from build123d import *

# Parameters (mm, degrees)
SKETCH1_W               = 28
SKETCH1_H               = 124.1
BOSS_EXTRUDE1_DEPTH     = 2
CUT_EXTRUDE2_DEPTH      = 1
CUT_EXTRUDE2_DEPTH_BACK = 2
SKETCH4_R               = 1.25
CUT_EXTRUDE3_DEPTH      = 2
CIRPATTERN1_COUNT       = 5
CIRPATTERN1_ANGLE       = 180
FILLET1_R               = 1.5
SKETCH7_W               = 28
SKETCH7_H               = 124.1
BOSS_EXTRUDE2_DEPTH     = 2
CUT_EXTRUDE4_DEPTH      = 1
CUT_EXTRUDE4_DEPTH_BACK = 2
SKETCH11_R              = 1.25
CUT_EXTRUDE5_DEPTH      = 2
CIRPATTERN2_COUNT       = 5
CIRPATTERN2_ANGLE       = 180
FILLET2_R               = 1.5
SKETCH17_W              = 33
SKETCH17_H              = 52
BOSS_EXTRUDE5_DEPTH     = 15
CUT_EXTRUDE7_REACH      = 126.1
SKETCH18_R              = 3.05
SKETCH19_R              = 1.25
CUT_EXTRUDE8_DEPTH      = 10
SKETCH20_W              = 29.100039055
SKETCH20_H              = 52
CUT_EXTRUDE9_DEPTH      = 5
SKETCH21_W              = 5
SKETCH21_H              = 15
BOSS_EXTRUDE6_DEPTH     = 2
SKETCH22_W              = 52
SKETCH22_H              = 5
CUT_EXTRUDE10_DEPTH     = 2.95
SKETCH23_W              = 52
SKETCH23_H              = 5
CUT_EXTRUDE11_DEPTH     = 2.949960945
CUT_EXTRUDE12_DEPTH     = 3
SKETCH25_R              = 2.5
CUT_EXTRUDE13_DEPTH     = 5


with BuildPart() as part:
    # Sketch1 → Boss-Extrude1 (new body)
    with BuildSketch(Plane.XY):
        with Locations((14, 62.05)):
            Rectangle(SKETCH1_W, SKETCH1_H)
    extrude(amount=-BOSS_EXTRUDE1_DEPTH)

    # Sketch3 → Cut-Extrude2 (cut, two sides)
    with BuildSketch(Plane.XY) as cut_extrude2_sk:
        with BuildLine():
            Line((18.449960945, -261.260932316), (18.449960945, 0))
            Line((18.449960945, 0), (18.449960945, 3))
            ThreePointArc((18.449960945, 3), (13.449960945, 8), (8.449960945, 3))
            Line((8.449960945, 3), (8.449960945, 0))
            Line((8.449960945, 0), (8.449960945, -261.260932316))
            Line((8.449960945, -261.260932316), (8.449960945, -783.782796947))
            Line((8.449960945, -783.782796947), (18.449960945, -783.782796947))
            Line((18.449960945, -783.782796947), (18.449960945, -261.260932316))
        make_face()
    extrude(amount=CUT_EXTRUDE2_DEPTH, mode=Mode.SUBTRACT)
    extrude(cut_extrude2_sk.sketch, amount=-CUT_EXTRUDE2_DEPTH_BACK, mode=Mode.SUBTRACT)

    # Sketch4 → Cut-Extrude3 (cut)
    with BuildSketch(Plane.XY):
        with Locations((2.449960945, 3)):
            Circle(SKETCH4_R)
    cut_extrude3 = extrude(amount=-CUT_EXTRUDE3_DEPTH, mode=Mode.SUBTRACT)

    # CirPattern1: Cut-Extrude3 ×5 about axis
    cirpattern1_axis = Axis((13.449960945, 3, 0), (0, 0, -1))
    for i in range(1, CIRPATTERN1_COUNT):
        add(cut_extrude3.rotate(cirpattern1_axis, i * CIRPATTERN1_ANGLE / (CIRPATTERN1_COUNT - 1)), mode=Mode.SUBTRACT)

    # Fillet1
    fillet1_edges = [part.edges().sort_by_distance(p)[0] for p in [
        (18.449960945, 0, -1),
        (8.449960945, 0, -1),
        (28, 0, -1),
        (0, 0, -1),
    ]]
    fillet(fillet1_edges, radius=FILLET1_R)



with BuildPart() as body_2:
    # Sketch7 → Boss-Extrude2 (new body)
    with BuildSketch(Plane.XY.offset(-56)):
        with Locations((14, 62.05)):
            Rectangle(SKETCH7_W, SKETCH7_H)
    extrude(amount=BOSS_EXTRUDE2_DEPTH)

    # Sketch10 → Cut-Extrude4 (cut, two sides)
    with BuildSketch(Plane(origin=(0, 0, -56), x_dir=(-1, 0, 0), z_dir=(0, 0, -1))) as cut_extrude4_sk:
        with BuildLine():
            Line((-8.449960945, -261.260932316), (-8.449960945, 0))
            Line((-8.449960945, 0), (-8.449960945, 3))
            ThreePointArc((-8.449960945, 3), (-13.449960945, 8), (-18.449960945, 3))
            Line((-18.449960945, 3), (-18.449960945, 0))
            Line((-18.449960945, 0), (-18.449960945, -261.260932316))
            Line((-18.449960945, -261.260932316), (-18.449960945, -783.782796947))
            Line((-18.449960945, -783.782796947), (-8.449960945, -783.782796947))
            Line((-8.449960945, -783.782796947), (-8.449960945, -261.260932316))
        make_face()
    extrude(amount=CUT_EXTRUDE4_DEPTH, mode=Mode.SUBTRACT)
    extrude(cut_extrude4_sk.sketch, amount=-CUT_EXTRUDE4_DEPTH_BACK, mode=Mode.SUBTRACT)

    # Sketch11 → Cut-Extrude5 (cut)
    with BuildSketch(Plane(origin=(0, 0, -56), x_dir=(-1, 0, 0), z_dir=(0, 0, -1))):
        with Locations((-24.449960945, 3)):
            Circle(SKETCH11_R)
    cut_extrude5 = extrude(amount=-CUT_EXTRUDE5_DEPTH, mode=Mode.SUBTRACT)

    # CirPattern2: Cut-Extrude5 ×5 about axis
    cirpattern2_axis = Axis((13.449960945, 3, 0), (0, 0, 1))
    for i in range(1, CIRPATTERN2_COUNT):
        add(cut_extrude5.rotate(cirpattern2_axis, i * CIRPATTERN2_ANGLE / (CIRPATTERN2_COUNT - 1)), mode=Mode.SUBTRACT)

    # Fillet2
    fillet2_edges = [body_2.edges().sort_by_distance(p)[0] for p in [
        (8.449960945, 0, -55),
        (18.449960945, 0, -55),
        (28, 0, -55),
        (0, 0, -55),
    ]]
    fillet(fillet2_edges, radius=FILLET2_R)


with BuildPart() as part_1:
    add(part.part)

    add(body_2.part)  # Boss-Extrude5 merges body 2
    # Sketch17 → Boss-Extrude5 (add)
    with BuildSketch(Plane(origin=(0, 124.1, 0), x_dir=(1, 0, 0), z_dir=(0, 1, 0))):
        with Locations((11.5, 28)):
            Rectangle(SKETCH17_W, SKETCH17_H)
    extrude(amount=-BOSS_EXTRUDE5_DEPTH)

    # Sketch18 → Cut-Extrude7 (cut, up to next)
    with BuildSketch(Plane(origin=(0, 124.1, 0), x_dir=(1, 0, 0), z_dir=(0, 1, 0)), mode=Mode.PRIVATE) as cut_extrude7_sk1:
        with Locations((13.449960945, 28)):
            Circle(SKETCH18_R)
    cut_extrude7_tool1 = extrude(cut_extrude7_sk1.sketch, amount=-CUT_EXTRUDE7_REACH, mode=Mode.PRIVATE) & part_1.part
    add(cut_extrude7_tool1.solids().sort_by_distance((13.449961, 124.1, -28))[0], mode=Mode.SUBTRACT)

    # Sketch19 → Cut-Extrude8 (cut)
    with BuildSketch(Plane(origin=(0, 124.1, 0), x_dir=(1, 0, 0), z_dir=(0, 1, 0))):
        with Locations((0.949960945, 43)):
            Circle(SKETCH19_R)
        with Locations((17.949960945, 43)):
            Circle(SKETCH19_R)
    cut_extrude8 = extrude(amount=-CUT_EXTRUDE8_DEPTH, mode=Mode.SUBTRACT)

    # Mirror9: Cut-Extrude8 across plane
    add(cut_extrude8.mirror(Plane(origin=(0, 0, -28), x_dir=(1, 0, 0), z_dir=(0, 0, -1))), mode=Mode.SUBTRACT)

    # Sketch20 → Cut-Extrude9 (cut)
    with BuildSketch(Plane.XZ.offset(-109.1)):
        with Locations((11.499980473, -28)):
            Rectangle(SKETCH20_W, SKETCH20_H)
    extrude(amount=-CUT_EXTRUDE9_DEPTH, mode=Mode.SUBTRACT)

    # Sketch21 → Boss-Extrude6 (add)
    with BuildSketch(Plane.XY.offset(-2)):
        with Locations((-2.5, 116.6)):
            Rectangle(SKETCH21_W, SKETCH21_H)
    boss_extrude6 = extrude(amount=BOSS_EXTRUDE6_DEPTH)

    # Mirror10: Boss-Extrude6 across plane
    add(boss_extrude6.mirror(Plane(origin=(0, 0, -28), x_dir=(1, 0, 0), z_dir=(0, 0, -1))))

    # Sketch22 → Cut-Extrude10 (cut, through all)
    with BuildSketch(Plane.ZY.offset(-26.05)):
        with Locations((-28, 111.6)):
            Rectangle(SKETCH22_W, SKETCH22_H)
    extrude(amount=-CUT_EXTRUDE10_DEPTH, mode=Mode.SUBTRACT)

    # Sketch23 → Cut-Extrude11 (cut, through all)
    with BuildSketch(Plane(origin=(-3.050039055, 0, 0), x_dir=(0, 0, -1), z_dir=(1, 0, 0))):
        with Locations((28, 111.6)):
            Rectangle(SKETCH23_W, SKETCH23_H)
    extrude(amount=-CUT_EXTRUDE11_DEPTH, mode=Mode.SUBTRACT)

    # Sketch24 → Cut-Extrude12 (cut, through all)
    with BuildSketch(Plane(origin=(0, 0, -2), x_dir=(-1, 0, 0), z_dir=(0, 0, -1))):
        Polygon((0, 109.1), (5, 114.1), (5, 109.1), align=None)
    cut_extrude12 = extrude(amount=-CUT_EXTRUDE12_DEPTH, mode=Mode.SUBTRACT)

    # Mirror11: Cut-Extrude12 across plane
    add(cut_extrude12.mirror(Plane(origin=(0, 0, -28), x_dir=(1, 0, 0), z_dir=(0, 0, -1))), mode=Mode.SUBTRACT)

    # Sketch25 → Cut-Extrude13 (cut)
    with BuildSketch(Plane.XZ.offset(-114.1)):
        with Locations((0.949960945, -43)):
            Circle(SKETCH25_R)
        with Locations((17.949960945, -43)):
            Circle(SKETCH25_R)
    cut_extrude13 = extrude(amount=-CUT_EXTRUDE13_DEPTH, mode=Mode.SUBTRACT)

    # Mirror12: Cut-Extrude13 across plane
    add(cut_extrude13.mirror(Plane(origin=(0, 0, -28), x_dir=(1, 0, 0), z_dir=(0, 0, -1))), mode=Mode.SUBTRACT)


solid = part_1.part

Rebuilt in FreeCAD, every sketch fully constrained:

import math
import FreeCAD as App
import Part
import Sketcher

V = App.Vector


def edges_at(feature, points):
    """Names of the edges that pass closest to the given points."""
    edges = feature.Shape.Edges
    near = lambda p: min(range(len(edges)), key=lambda i: edges[i].distToShape(Part.Vertex(*p))[0])
    return sorted({f"Edge{near(p) + 1}" for p in points})


def add_polygon(sketch, points):
    """Adds a closed chain of lines whose ends are joined by coincident constraints."""
    first, n = sketch.GeometryCount, len(points)
    for a, b in zip(points, points[1:] + points[:1]):
        sketch.addGeometry(Part.LineSegment(App.Vector(*a, 0), App.Vector(*b, 0)), False)
    for i in range(n):
        sketch.addConstraint(Sketcher.Constraint("Coincident", first + i, 2, first + (i + 1) % n, 1))

doc = App.newDocument("Part")
params = doc.addObject("Spreadsheet::Sheet", "Params")
for row, (alias, value) in enumerate([
    ("sketch1_width", "28 mm"),
    ("sketch1_height", "124.1 mm"),
    ("pad1_length", "2 mm"),
    ("sketch2_radius", "5 mm"),
    ("sketch3_diameter", "2.5 mm"),
    ("pocket2_length", "2 mm"),
    ("fillet_radius", "1.5 mm"),
    ("sketch4_width", "28 mm"),
    ("sketch4_height", "124.1 mm"),
    ("pad2_length", "2 mm"),
    ("sketch5_radius", "5 mm"),
    ("sketch6_diameter", "2.5 mm"),
    ("pocket4_length", "2 mm"),
    ("fillet2_radius", "1.5 mm"),
    ("sketch7_width", "33 mm"),
    ("sketch7_height", "52 mm"),
    ("pad3_length", "15 mm"),
    ("sketch8_diameter", "6.1 mm"),
    ("sketch9_diameter", "2.5 mm"),
    ("pocket6_length", "10 mm"),
    ("sketch10_height", "52 mm"),
    ("pocket7_length", "5 mm"),
    ("sketch11_width", "5 mm"),
    ("sketch11_height", "15 mm"),
    ("pad4_length", "2 mm"),
    ("sketch12_width", "5 mm"),
    ("sketch12_height", "52 mm"),
    ("sketch13_width", "5 mm"),
    ("sketch13_height", "52 mm"),
    ("sketch14_width", "5 mm"),
    ("sketch15_diameter", "5 mm"),
    ("pocket11_length", "5 mm"),
], start=1):
    params.set(f"A{row}", alias)
    params.set(f"B{row}", "=" + value)
    params.setAlias(f"B{row}", alias)

body = doc.addObject("PartDesign::Body", "Body")

sketch1 = doc.addObject("Sketcher::SketchObject", "Sketch")
body.addObject(sketch1)
sketch1.AttachmentSupport = (doc.XY_Plane, [""])
sketch1.MapMode = "FlatFace"
add_polygon(sketch1, [(0, 124.1), (0, 0), (28, 0), (28, 124.1)])
sketch1.addConstraint([
    Sketcher.Constraint("Vertical", 0),
    Sketcher.Constraint("Horizontal", 1),
    Sketcher.Constraint("Vertical", 2),
    Sketcher.Constraint("Horizontal", 3),
    Sketcher.Constraint("Coincident", 0, 2, -1, 1),
    Sketcher.Constraint("DistanceX", 1, 1, 1, 2, 28.0),
    Sketcher.Constraint("DistanceY", 0, 2, 0, 1, 124.1),
])
sketch1.setExpression("Constraints[9]", "Params.sketch1_width")
sketch1.setExpression("Constraints[10]", "Params.sketch1_height")
pad1 = doc.addObject("PartDesign::Pad", "Pad")
body.addObject(pad1)
pad1.Profile = sketch1
pad1.setExpression("Length", "Params.pad1_length")
pad1.Reversed = True

sketch2 = doc.addObject("Sketcher::SketchObject", "Sketch001")
body.addObject(sketch2)
sketch2.AttachmentSupport = (doc.XY_Plane, [""])
sketch2.MapMode = "FlatFace"
sketch2.addGeometry([
    Part.ArcOfCircle(Part.Circle(V(13.449961, 3, 0), V(0, 0, 1), 5), math.radians(0), math.radians(180)),
    Part.LineSegment(V(8.449961, 3, 0), V(8.449961, -783.782797, 0)),
    Part.LineSegment(V(8.449961, -783.782797, 0), V(18.449961, -783.782797, 0)),
    Part.LineSegment(V(18.449961, -783.782797, 0), V(18.449961, 3, 0)),
], False)
sketch2.addConstraint([
    Sketcher.Constraint("Tangent", 0, 2, 1, 1),
    Sketcher.Constraint("Coincident", 1, 2, 2, 1),
    Sketcher.Constraint("Coincident", 2, 2, 3, 1),
    Sketcher.Constraint("Tangent", 3, 2, 0, 1),
    Sketcher.Constraint("Vertical", 1),
    Sketcher.Constraint("Horizontal", 2),
    Sketcher.Constraint("Vertical", 3),
    Sketcher.Constraint("Radius", 0, 5.0),
    Sketcher.Constraint("DistanceY", -1, 1, 0, 3, 3.0),
    Sketcher.Constraint("DistanceY", 1, 2, 1, 1, 786.782797),
    Sketcher.Constraint("DistanceX", -1, 1, 0, 3, 13.449961),
])
sketch2.setExpression("Constraints[7]", "Params.sketch2_radius")
pocket1 = doc.addObject("PartDesign::Pocket", "Pocket")
body.addObject(pocket1)
pocket1.Profile = sketch2
pocket1.Type = "ThroughAll"
pocket1.Midplane = True

sketch3 = doc.addObject("Sketcher::SketchObject", "Sketch002")
body.addObject(sketch3)
sketch3.AttachmentSupport = (doc.XY_Plane, [""])
sketch3.MapMode = "FlatFace"
sketch3.addGeometry(Part.Circle(V(2.449961, 3, 0), V(0, 0, 1), 1.25), False)
sketch3.addConstraint([
    Sketcher.Constraint("Diameter", 0, 2.5),
    Sketcher.Constraint("DistanceY", -1, 1, 0, 3, 3.0),
    Sketcher.Constraint("DistanceX", -1, 1, 0, 3, 2.449961),
])
sketch3.setExpression("Constraints[0]", "Params.sketch3_diameter")
pocket2 = doc.addObject("PartDesign::Pocket", "Pocket001")
body.addObject(pocket2)
pocket2.Profile = sketch3
pocket2.setExpression("Length", "Params.pocket2_length")
doc.recompute()

datumline = doc.addObject("PartDesign::Line", "DatumLine")
body.addObject(datumline)
datumline.Placement = App.Placement(V(13.449961, 3, 0), App.Rotation(V(0, 0, 1), V(0, 0, -1)))
polarpattern = doc.addObject("PartDesign::PolarPattern", "PolarPattern")
body.addObject(polarpattern)
polarpattern.Originals = [pocket2]
polarpattern.Axis = (datumline, [""])
polarpattern.Angle = 180
polarpattern.Occurrences = 5
body.Tip = polarpattern
doc.recompute()

fillet = doc.addObject("PartDesign::Fillet", "Fillet")
body.addObject(fillet)
fillet.Base = (polarpattern, edges_at(polarpattern, [
    (18.45, 0, -1),
    (8.45, 0, -1),
    (28, 0, -1),
    (0, 0, -1),
]))
fillet.setExpression("Radius", "Params.fillet_radius")
body2 = doc.addObject("PartDesign::Body", "Body001")

sketch4 = doc.addObject("Sketcher::SketchObject", "Sketch003")
body2.addObject(sketch4)
sketch4.AttachmentSupport = (doc.getObject("XY_Plane001"), [""])
sketch4.MapMode = "FlatFace"
sketch4.AttachmentOffset = App.Placement(V(0, 0, -56), App.Rotation())
add_polygon(sketch4, [(0, 124.1), (0, 0), (28, 0), (28, 124.1)])
sketch4.addConstraint([
    Sketcher.Constraint("Vertical", 0),
    Sketcher.Constraint("Horizontal", 1),
    Sketcher.Constraint("Vertical", 2),
    Sketcher.Constraint("Horizontal", 3),
    Sketcher.Constraint("Coincident", 0, 2, -1, 1),
    Sketcher.Constraint("DistanceX", 1, 1, 1, 2, 28.0),
    Sketcher.Constraint("DistanceY", 0, 2, 0, 1, 124.1),
])
sketch4.setExpression("Constraints[9]", "Params.sketch4_width")
sketch4.setExpression("Constraints[10]", "Params.sketch4_height")
pad2 = doc.addObject("PartDesign::Pad", "Pad001")
body2.addObject(pad2)
pad2.Profile = sketch4
pad2.setExpression("Length", "Params.pad2_length")

sketch5 = doc.addObject("Sketcher::SketchObject", "Sketch004")
body2.addObject(sketch5)
sketch5.AttachmentSupport = (doc.getObject("XY_Plane001"), [""])
sketch5.MapMode = "FlatFace"
sketch5.AttachmentOffset = App.Placement(V(0, 0, -56), App.Rotation())
sketch5.addGeometry([
    Part.ArcOfCircle(Part.Circle(V(13.449961, 3, 0), V(0, 0, 1), 5), math.radians(0), math.radians(180)),
    Part.LineSegment(V(18.449961, 3, 0), V(18.449961, -783.782797, 0)),
    Part.LineSegment(V(18.449961, -783.782797, 0), V(8.449961, -783.782797, 0)),
    Part.LineSegment(V(8.449961, -783.782797, 0), V(8.449961, 3, 0)),
], False)
sketch5.addConstraint([
    Sketcher.Constraint("Tangent", 0, 1, 1, 1),
    Sketcher.Constraint("Coincident", 1, 2, 2, 1),
    Sketcher.Constraint("Coincident", 2, 2, 3, 1),
    Sketcher.Constraint("Tangent", 3, 2, 0, 2),
    Sketcher.Constraint("Vertical", 1),
    Sketcher.Constraint("Horizontal", 2),
    Sketcher.Constraint("Vertical", 3),
    Sketcher.Constraint("Radius", 0, 5.0),
    Sketcher.Constraint("DistanceY", -1, 1, 0, 3, 3.0),
    Sketcher.Constraint("DistanceY", 1, 2, 1, 1, 786.782797),
    Sketcher.Constraint("DistanceX", -1, 1, 0, 3, 13.449961),
])
sketch5.setExpression("Constraints[7]", "Params.sketch5_radius")
pocket3 = doc.addObject("PartDesign::Pocket", "Pocket002")
body2.addObject(pocket3)
pocket3.Profile = sketch5
pocket3.Type = "ThroughAll"
pocket3.Midplane = True

sketch6 = doc.addObject("Sketcher::SketchObject", "Sketch005")
body2.addObject(sketch6)
sketch6.AttachmentSupport = (doc.getObject("XY_Plane001"), [""])
sketch6.MapMode = "FlatFace"
sketch6.AttachmentOffset = App.Placement(V(0, 0, -56), App.Rotation())
sketch6.addGeometry(Part.Circle(V(24.449961, 3, 0), V(0, 0, 1), 1.25), False)
sketch6.addConstraint([
    Sketcher.Constraint("Diameter", 0, 2.5),
    Sketcher.Constraint("DistanceY", -1, 1, 0, 3, 3.0),
    Sketcher.Constraint("DistanceX", -1, 1, 0, 3, 24.449961),
])
sketch6.setExpression("Constraints[0]", "Params.sketch6_diameter")
pocket4 = doc.addObject("PartDesign::Pocket", "Pocket003")
body2.addObject(pocket4)
pocket4.Profile = sketch6
pocket4.setExpression("Length", "Params.pocket4_length")
pocket4.Reversed = True
doc.recompute()

datumline2 = doc.addObject("PartDesign::Line", "DatumLine001")
body2.addObject(datumline2)
datumline2.Placement = App.Placement(V(13.449961, 3, 0), App.Rotation(V(0, 0, 1), V(0, 0, 1)))
polarpattern2 = doc.addObject("PartDesign::PolarPattern", "PolarPattern001")
body2.addObject(polarpattern2)
polarpattern2.Originals = [pocket4]
polarpattern2.Axis = (datumline2, [""])
polarpattern2.Angle = 180
polarpattern2.Occurrences = 5
body2.Tip = polarpattern2
doc.recompute()

fillet2 = doc.addObject("PartDesign::Fillet", "Fillet001")
body2.addObject(fillet2)
fillet2.Base = (polarpattern2, edges_at(polarpattern2, [
    (8.45, 0, -55),
    (18.45, 0, -55),
    (28, 0, -55),
    (0, 0, -55),
]))
fillet2.setExpression("Radius", "Params.fillet2_radius")
body.AllowCompound = True
doc.recompute()

boolean = doc.addObject("PartDesign::Boolean", "Boolean")
body.addObject(boolean)
boolean.Type = "Fuse"
boolean.addObjects([body2])

sketch7 = doc.addObject("Sketcher::SketchObject", "Sketch006")
body.addObject(sketch7)
sketch7.AttachmentSupport = (doc.XZ_Plane, [""])
sketch7.MapMode = "FlatFace"
sketch7.AttachmentOffset = App.Placement(V(0, 0, -124.1), App.Rotation())
add_polygon(sketch7, [(-5, -54), (-5, -2), (28, -2), (28, -54)])
sketch7.addConstraint([
    Sketcher.Constraint("Vertical", 0),
    Sketcher.Constraint("Horizontal", 1),
    Sketcher.Constraint("Vertical", 2),
    Sketcher.Constraint("Horizontal", 3),
    Sketcher.Constraint("DistanceX", 1, 1, 1, 2, 33.0),
    Sketcher.Constraint("DistanceY", 0, 1, 0, 2, 52.0),
    Sketcher.Constraint("DistanceX", 0, 2, -1, 1, 5.0),
    Sketcher.Constraint("DistanceY", 0, 2, -1, 1, 2.0),
])
sketch7.setExpression("Constraints[8]", "Params.sketch7_width")
sketch7.setExpression("Constraints[9]", "Params.sketch7_height")
pad3 = doc.addObject("PartDesign::Pad", "Pad002")
body.addObject(pad3)
pad3.Profile = sketch7
pad3.setExpression("Length", "Params.pad3_length")

sketch8 = doc.addObject("Sketcher::SketchObject", "Sketch007")
body.addObject(sketch8)
sketch8.AttachmentSupport = (doc.XZ_Plane, [""])
sketch8.MapMode = "FlatFace"
sketch8.AttachmentOffset = App.Placement(V(0, 0, -124.1), App.Rotation())
sketch8.addGeometry(Part.Circle(V(13.449961, -28, 0), V(0, 0, 1), 3.05), False)
sketch8.addConstraint([
    Sketcher.Constraint("Diameter", 0, 6.1),
    Sketcher.Constraint("DistanceY", 0, 3, -1, 1, 28.0),
    Sketcher.Constraint("DistanceX", -1, 1, 0, 3, 13.449961),
])
sketch8.setExpression("Constraints[0]", "Params.sketch8_diameter")
pocket5 = doc.addObject("PartDesign::Pocket", "Pocket004")
body.addObject(pocket5)
pocket5.Profile = sketch8
pocket5.Type = "UpToFirst"
pocket5.Reversed = True

sketch9 = doc.addObject("Sketcher::SketchObject", "Sketch008")
body.addObject(sketch9)
sketch9.AttachmentSupport = (doc.XZ_Plane, [""])
sketch9.MapMode = "FlatFace"
sketch9.AttachmentOffset = App.Placement(V(0, 0, -124.1), App.Rotation())
sketch9.addGeometry([
    Part.Circle(V(0.949961, -43, 0), V(0, 0, 1), 1.25),
    Part.Circle(V(17.949961, -43, 0), V(0, 0, 1), 1.25),
], False)
sketch9.addConstraint([
    Sketcher.Constraint("Equal", 0, 1),
    Sketcher.Constraint("Horizontal", 0, 3, 1, 3),
    Sketcher.Constraint("Diameter", 0, 2.5),
    Sketcher.Constraint("DistanceY", 0, 3, -1, 1, 43.0),
    Sketcher.Constraint("DistanceX", 0, 3, 1, 3, 17.0),
    Sketcher.Constraint("DistanceX", -1, 1, 0, 3, 0.949961),
])
sketch9.setExpression("Constraints[2]", "Params.sketch9_diameter")
pocket6 = doc.addObject("PartDesign::Pocket", "Pocket005")
body.addObject(pocket6)
pocket6.Profile = sketch9
pocket6.setExpression("Length", "Params.pocket6_length")
pocket6.Reversed = True
doc.recompute()

datumplane = doc.addObject("PartDesign::Plane", "DatumPlane")
body.addObject(datumplane)
datumplane.AttachmentSupport = (doc.XY_Plane, [""])
datumplane.MapMode = "FlatFace"
datumplane.AttachmentOffset = App.Placement(V(0, 0, -28), App.Rotation())
mirrored = doc.addObject("PartDesign::Mirrored", "Mirrored")
body.addObject(mirrored)
mirrored.Originals = [pocket6]
mirrored.MirrorPlane = (datumplane, [""])
body.Tip = mirrored

sketch10 = doc.addObject("Sketcher::SketchObject", "Sketch009")
body.addObject(sketch10)
sketch10.AttachmentSupport = (doc.XZ_Plane, [""])
sketch10.MapMode = "FlatFace"
sketch10.AttachmentOffset = App.Placement(V(0, 0, -109.1), App.Rotation())
add_polygon(sketch10, [(-3.050039, -2), (-3.050039, -54), (26.05, -54), (26.05, -2)])
sketch10.addConstraint([
    Sketcher.Constraint("Vertical", 0),
    Sketcher.Constraint("Horizontal", 1),
    Sketcher.Constraint("Vertical", 2),
    Sketcher.Constraint("Horizontal", 3),
    Sketcher.Constraint("DistanceY", 0, 2, 0, 1, 52.0),
    Sketcher.Constraint("DistanceY", 0, 2, -1, 1, 54.0),
    Sketcher.Constraint("DistanceX", -1, 1, 1, 2, 26.05),
    Sketcher.Constraint("DistanceX", 1, 1, 1, 2, 29.100039),
])
sketch10.setExpression("Constraints[8]", "Params.sketch10_height")
pocket7 = doc.addObject("PartDesign::Pocket", "Pocket006")
body.addObject(pocket7)
pocket7.Profile = sketch10
pocket7.setExpression("Length", "Params.pocket7_length")

sketch11 = doc.addObject("Sketcher::SketchObject", "Sketch010")
body.addObject(sketch11)
sketch11.AttachmentSupport = (doc.XY_Plane, [""])
sketch11.MapMode = "FlatFace"
sketch11.AttachmentOffset = App.Placement(V(0, 0, -2), App.Rotation())
add_polygon(sketch11, [(-5, 124.1), (-5, 109.1), (0, 109.1), (0, 124.1)])
sketch11.addConstraint([
    Sketcher.Constraint("Vertical", 0),
    Sketcher.Constraint("Horizontal", 1),
    Sketcher.Constraint("Vertical", 2),
    Sketcher.Constraint("Horizontal", 3),
    Sketcher.Constraint("PointOnObject", 1, 2, -2),
    Sketcher.Constraint("DistanceX", 1, 1, 1, 2, 5.0),
    Sketcher.Constraint("DistanceY", 0, 2, 0, 1, 15.0),
    Sketcher.Constraint("DistanceY", -1, 1, 0, 2, 109.1),
])
sketch11.setExpression("Constraints[9]", "Params.sketch11_width")
sketch11.setExpression("Constraints[10]", "Params.sketch11_height")
pad4 = doc.addObject("PartDesign::Pad", "Pad003")
body.addObject(pad4)
pad4.Profile = sketch11
pad4.setExpression("Length", "Params.pad4_length")
doc.recompute()

datumplane2 = doc.addObject("PartDesign::Plane", "DatumPlane001")
body.addObject(datumplane2)
datumplane2.AttachmentSupport = (doc.XY_Plane, [""])
datumplane2.MapMode = "FlatFace"
datumplane2.AttachmentOffset = App.Placement(V(0, 0, -28), App.Rotation())
mirrored2 = doc.addObject("PartDesign::Mirrored", "Mirrored001")
body.addObject(mirrored2)
mirrored2.Originals = [pad4]
mirrored2.MirrorPlane = (datumplane2, [""])
body.Tip = mirrored2

sketch12 = doc.addObject("Sketcher::SketchObject", "Sketch011")
body.addObject(sketch12)
sketch12.AttachmentSupport = (doc.YZ_Plane, [""])
sketch12.MapMode = "FlatFace"
sketch12.AttachmentOffset = App.Placement(V(0, 0, 26.05), App.Rotation())
add_polygon(sketch12, [(114.1, -54), (109.1, -54), (109.1, -2), (114.1, -2)])
sketch12.addConstraint([
    Sketcher.Constraint("Horizontal", 0),
    Sketcher.Constraint("Vertical", 1),
    Sketcher.Constraint("Horizontal", 2),
    Sketcher.Constraint("Vertical", 3),
    Sketcher.Constraint("DistanceX", 0, 2, 0, 1, 5.0),
    Sketcher.Constraint("DistanceY", 1, 1, 1, 2, 52.0),
    Sketcher.Constraint("DistanceY", 0, 2, -1, 1, 54.0),
    Sketcher.Constraint("DistanceX", -1, 1, 0, 2, 109.1),
])
sketch12.setExpression("Constraints[8]", "Params.sketch12_width")
sketch12.setExpression("Constraints[9]", "Params.sketch12_height")
pocket8 = doc.addObject("PartDesign::Pocket", "Pocket007")
body.addObject(pocket8)
pocket8.Profile = sketch12
pocket8.Type = "ThroughAll"
pocket8.Reversed = True

sketch13 = doc.addObject("Sketcher::SketchObject", "Sketch012")
body.addObject(sketch13)
sketch13.AttachmentSupport = (doc.YZ_Plane, [""])
sketch13.MapMode = "FlatFace"
sketch13.AttachmentOffset = App.Placement(V(0, 0, -3.050039), App.Rotation())
add_polygon(sketch13, [(114.1, -2), (109.1, -2), (109.1, -54), (114.1, -54)])
sketch13.addConstraint([
    Sketcher.Constraint("Horizontal", 0),
    Sketcher.Constraint("Vertical", 1),
    Sketcher.Constraint("Horizontal", 2),
    Sketcher.Constraint("Vertical", 3),
    Sketcher.Constraint("DistanceX", 0, 2, 0, 1, 5.0),
    Sketcher.Constraint("DistanceY", 1, 2, 1, 1, 52.0),
    Sketcher.Constraint("DistanceY", 0, 2, -1, 1, 2.0),
    Sketcher.Constraint("DistanceX", -1, 1, 0, 2, 109.1),
])
sketch13.setExpression("Constraints[8]", "Params.sketch13_width")
sketch13.setExpression("Constraints[9]", "Params.sketch13_height")
pocket9 = doc.addObject("PartDesign::Pocket", "Pocket008")
body.addObject(pocket9)
pocket9.Profile = sketch13
pocket9.Type = "ThroughAll"

sketch14 = doc.addObject("Sketcher::SketchObject", "Sketch013")
body.addObject(sketch14)
sketch14.AttachmentSupport = (doc.XY_Plane, [""])
sketch14.MapMode = "FlatFace"
sketch14.AttachmentOffset = App.Placement(V(0, 0, -2), App.Rotation())
add_polygon(sketch14, [(-5, 114.1), (0, 109.1), (-5, 109.1)])
sketch14.addConstraint([
    Sketcher.Constraint("Horizontal", 1),
    Sketcher.Constraint("Vertical", 2),
    Sketcher.Constraint("PointOnObject", 0, 2, -2),
    Sketcher.Constraint("Equal", 1, 2),
    Sketcher.Constraint("DistanceX", 1, 2, 1, 1, 5.0),
    Sketcher.Constraint("DistanceY", -1, 1, 0, 2, 109.1),
])
sketch14.setExpression("Constraints[7]", "Params.sketch14_width")
pocket10 = doc.addObject("PartDesign::Pocket", "Pocket009")
body.addObject(pocket10)
pocket10.Profile = sketch14
pocket10.Type = "ThroughAll"
pocket10.Reversed = True
doc.recompute()

datumplane3 = doc.addObject("PartDesign::Plane", "DatumPlane002")
body.addObject(datumplane3)
datumplane3.AttachmentSupport = (doc.XY_Plane, [""])
datumplane3.MapMode = "FlatFace"
datumplane3.AttachmentOffset = App.Placement(V(0, 0, -28), App.Rotation())
mirrored3 = doc.addObject("PartDesign::Mirrored", "Mirrored002")
body.addObject(mirrored3)
mirrored3.Originals = [pocket10]
mirrored3.MirrorPlane = (datumplane3, [""])
body.Tip = mirrored3

sketch15 = doc.addObject("Sketcher::SketchObject", "Sketch014")
body.addObject(sketch15)
sketch15.AttachmentSupport = (doc.XZ_Plane, [""])
sketch15.MapMode = "FlatFace"
sketch15.AttachmentOffset = App.Placement(V(0, 0, -114.1), App.Rotation())
sketch15.addGeometry([
    Part.Circle(V(0.949961, -43, 0), V(0, 0, 1), 2.5),
    Part.Circle(V(17.949961, -43, 0), V(0, 0, 1), 2.5),
], False)
sketch15.addConstraint([
    Sketcher.Constraint("Equal", 0, 1),
    Sketcher.Constraint("Horizontal", 0, 3, 1, 3),
    Sketcher.Constraint("Diameter", 0, 5.0),
    Sketcher.Constraint("DistanceY", 0, 3, -1, 1, 43.0),
    Sketcher.Constraint("DistanceX", 0, 3, 1, 3, 17.0),
    Sketcher.Constraint("DistanceX", -1, 1, 0, 3, 0.949961),
])
sketch15.setExpression("Constraints[2]", "Params.sketch15_diameter")
pocket11 = doc.addObject("PartDesign::Pocket", "Pocket010")
body.addObject(pocket11)
pocket11.Profile = sketch15
pocket11.setExpression("Length", "Params.pocket11_length")
doc.recompute()

datumplane4 = doc.addObject("PartDesign::Plane", "DatumPlane003")
body.addObject(datumplane4)
datumplane4.AttachmentSupport = (doc.XY_Plane, [""])
datumplane4.MapMode = "FlatFace"
datumplane4.AttachmentOffset = App.Placement(V(0, 0, -28), App.Rotation())
mirrored4 = doc.addObject("PartDesign::Mirrored", "Mirrored003")
body.addObject(mirrored4)
mirrored4.Originals = [pocket11]
mirrored4.MirrorPlane = (datumplane4, [""])
body.Tip = mirrored4

doc.recompute()
